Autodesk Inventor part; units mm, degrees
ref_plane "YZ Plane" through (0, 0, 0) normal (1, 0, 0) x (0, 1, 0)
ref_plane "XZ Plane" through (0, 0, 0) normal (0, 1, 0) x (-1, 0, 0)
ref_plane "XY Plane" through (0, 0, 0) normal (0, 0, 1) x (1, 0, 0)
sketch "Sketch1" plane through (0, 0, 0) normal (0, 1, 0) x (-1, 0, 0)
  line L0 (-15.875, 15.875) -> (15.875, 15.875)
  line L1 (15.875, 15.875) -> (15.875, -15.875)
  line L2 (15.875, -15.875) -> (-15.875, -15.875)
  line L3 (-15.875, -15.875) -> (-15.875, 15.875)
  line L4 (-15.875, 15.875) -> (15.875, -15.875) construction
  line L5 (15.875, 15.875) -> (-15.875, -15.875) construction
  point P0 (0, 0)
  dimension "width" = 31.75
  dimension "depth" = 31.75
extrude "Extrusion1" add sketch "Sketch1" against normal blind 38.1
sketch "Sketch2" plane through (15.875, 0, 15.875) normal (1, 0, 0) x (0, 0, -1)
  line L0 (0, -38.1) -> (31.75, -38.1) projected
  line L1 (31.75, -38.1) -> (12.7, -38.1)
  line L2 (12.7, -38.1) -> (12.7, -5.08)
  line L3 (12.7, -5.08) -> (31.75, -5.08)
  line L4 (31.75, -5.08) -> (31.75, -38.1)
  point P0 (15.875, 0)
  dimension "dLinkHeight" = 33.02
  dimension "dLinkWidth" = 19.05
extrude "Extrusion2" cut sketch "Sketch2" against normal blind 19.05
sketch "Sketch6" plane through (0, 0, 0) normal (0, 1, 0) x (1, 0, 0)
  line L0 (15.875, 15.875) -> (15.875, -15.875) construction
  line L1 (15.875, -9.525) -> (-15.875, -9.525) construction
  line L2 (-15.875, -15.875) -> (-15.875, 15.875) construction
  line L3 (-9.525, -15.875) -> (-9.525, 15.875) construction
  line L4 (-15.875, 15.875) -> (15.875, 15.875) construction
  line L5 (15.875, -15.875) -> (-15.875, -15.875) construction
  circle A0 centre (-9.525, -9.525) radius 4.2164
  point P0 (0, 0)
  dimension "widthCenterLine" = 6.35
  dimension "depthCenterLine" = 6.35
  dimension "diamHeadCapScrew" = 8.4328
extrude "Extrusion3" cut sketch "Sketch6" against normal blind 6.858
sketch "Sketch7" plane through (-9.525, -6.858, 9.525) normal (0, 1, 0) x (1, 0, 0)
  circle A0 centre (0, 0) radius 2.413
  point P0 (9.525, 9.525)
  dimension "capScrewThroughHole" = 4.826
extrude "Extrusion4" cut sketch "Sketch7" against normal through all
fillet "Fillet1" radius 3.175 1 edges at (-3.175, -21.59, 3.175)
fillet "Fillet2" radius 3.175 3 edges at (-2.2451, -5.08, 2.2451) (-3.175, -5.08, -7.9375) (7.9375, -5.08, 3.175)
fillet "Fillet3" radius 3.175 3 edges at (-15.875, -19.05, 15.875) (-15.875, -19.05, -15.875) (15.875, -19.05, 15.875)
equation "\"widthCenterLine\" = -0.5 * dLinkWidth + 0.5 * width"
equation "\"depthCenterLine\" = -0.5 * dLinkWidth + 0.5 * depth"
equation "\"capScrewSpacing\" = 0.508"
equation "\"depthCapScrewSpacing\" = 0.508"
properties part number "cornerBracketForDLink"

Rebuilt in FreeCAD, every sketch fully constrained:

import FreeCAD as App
import Part
import Sketcher
Q = App.Units.Quantity


def edges_at(feature, points):
    """Names of the edges that pass closest to the given points."""
    edges = feature.Shape.Edges
    near = lambda p: min(range(len(edges)), key=lambda i: edges[i].distToShape(Part.Vertex(*p))[0])
    return sorted({f"Edge{near(p) + 1}" for p in points})

doc = App.newDocument("Part")
body = doc.addObject("PartDesign::Body", "Body")

sketch1 = body.newObject("Sketcher::SketchObject", "Sketch")
sketch1.AttachmentSupport = (doc.getObject("XZ_Plane"), [""])
sketch1.MapMode = "FlatFace"
sketch1.addGeometry(Part.LineSegment(App.Vector(-16, 16, 0), App.Vector(16, 16, 0)), False)
sketch1.addGeometry(Part.LineSegment(App.Vector(16, 16, 0), App.Vector(16, -16, 0)), False)
sketch1.addGeometry(Part.LineSegment(App.Vector(16, -16, 0), App.Vector(-16, -16, 0)), False)
sketch1.addGeometry(Part.LineSegment(App.Vector(-16, -16, 0), App.Vector(-16, 16, 0)), False)
sketch1.addConstraint(Sketcher.Constraint("Coincident", 0, 2, 1, 1))
sketch1.addConstraint(Sketcher.Constraint("Coincident", 1, 2, 2, 1))
sketch1.addConstraint(Sketcher.Constraint("Coincident", 2, 2, 3, 1))
sketch1.addConstraint(Sketcher.Constraint("Coincident", 3, 2, 0, 1))
sketch1.addConstraint(Sketcher.Constraint("Horizontal", 0))
sketch1.addConstraint(Sketcher.Constraint("Vertical", 1))
sketch1.addConstraint(Sketcher.Constraint("Horizontal", 2))
sketch1.addConstraint(Sketcher.Constraint("Vertical", 3))
sketch1.addConstraint(Sketcher.Constraint("Symmetric", 0, 2, 2, 2, -1, 1))
sketch1.addConstraint(Sketcher.Constraint("Equal", 2, 1))
sketch1.addConstraint(Sketcher.Constraint("DistanceX", 0, 1, 0, 2, Q("1.25 in")))
pad1 = body.newObject("PartDesign::Pad", "Pad")
pad1.Profile = sketch1
pad1.Length = Q("1.5 in")

sketch2 = body.newObject("Sketcher::SketchObject", "Sketch001")
sketch2.AttachmentSupport = (doc.getObject("YZ_Plane"), [""])
sketch2.MapMode = "FlatFace"
sketch2.AttachmentOffset = App.Placement(App.Vector(0, 0, 0.625 * 25.4), App.Rotation())
sketch2.addGeometry(Part.LineSegment(App.Vector(-5, 3, 0), App.Vector(-38, 3, 0)), False)
sketch2.addGeometry(Part.LineSegment(App.Vector(-38, 3, 0), App.Vector(-38, -16, 0)), False)
sketch2.addGeometry(Part.LineSegment(App.Vector(-38, -16, 0), App.Vector(-5, -16, 0)), False)
sketch2.addGeometry(Part.LineSegment(App.Vector(-5, -16, 0), App.Vector(-5, 3, 0)), False)
sketch2.addConstraint(Sketcher.Constraint("Coincident", 0, 2, 1, 1))
sketch2.addConstraint(Sketcher.Constraint("Coincident", 1, 2, 2, 1))
sketch2.addConstraint(Sketcher.Constraint("Coincident", 2, 2, 3, 1))
sketch2.addConstraint(Sketcher.Constraint("Coincident", 3, 2, 0, 1))
sketch2.addConstraint(Sketcher.Constraint("Horizontal", 0))
sketch2.addConstraint(Sketcher.Constraint("Vertical", 1))
sketch2.addConstraint(Sketcher.Constraint("Horizontal", 2))
sketch2.addConstraint(Sketcher.Constraint("Vertical", 3))
sketch2.addConstraint(Sketcher.Constraint("DistanceX", 0, 2, 0, 1, Q("1.3 in")))
sketch2.addConstraint(Sketcher.Constraint("DistanceY", 1, 2, 1, 1, Q("0.75 in")))
sketch2.addConstraint(Sketcher.Constraint("DistanceX", 0, 2, -1, 1, Q("1.5 in")))
sketch2.addConstraint(Sketcher.Constraint("DistanceY", -1, 1, 0, 2, Q("0.125 in")))
pocket1 = body.newObject("PartDesign::Pocket", "Pocket")
pocket1.Profile = sketch2
pocket1.Length = Q("0.75 in")

sketch3 = body.newObject("Sketcher::SketchObject", "Sketch002")
sketch3.AttachmentSupport = (doc.getObject("XZ_Plane"), [""])
sketch3.MapMode = "FlatFace"
sketch3.addGeometry(Part.Circle(App.Vector(-9.5, 9.5, 0), App.Vector(0, 0, 1), 4.2), False)
sketch3.addConstraint(Sketcher.Constraint("Diameter", 0, Q("0.332 in")))
sketch3.addConstraint(Sketcher.Constraint("DistanceX", 0, 3, -1, 1, Q("0.375 in")))
sketch3.addConstraint(Sketcher.Constraint("DistanceY", -1, 1, 0, 3, Q("0.375 in")))
pocket2 = body.newObject("PartDesign::Pocket", "Pocket001")
pocket2.Profile = sketch3
pocket2.Length = Q("0.27 in")
pocket2.Reversed = True

sketch4 = body.newObject("Sketcher::SketchObject", "Sketch003")
sketch4.AttachmentSupport = (doc.getObject("XZ_Plane"), [""])
sketch4.MapMode = "FlatFace"
sketch4.AttachmentOffset = App.Placement(App.Vector(0, 0, 0.27 * 25.4), App.Rotation())
sketch4.addGeometry(Part.Circle(App.Vector(-9.5, 9.5, 0), App.Vector(0, 0, 1), 2.4), False)
sketch4.addConstraint(Sketcher.Constraint("Diameter", 0, Q("0.19 in")))
sketch4.addConstraint(Sketcher.Constraint("DistanceX", 0, 3, -1, 1, Q("0.375 in")))
sketch4.addConstraint(Sketcher.Constraint("DistanceY", -1, 1, 0, 3, Q("0.375 in")))
pocket3 = body.newObject("PartDesign::Pocket", "Pocket002")
pocket3.Profile = sketch4
pocket3.Type = "ThroughAll"
pocket3.Reversed = True
doc.recompute()

fillet = body.newObject("PartDesign::Fillet", "Fillet")
fillet.Base = (pocket3, edges_at(pocket3, [(-3.175, -21.59, 3.175)]))
fillet.Radius = Q("0.125 in")
doc.recompute()

fillet2 = body.newObject("PartDesign::Fillet", "Fillet001")
fillet2.Base = (fillet, edges_at(fillet, [(-2.245, -5.08, 2.245), (-3.175, -5.08, -7.938), (7.938, -5.08, 3.175)]))
fillet2.Radius = Q("0.125 in")
doc.recompute()

fillet3 = body.newObject("PartDesign::Fillet", "Fillet002")
fillet3.Base = (fillet2, edges_at(fillet2, [(-15.875, -19.05, 15.875), (-15.875, -19.05, -15.875), (15.875, -19.05, 15.875)]))
fillet3.Radius = Q("0.125 in")

doc.recompute()
